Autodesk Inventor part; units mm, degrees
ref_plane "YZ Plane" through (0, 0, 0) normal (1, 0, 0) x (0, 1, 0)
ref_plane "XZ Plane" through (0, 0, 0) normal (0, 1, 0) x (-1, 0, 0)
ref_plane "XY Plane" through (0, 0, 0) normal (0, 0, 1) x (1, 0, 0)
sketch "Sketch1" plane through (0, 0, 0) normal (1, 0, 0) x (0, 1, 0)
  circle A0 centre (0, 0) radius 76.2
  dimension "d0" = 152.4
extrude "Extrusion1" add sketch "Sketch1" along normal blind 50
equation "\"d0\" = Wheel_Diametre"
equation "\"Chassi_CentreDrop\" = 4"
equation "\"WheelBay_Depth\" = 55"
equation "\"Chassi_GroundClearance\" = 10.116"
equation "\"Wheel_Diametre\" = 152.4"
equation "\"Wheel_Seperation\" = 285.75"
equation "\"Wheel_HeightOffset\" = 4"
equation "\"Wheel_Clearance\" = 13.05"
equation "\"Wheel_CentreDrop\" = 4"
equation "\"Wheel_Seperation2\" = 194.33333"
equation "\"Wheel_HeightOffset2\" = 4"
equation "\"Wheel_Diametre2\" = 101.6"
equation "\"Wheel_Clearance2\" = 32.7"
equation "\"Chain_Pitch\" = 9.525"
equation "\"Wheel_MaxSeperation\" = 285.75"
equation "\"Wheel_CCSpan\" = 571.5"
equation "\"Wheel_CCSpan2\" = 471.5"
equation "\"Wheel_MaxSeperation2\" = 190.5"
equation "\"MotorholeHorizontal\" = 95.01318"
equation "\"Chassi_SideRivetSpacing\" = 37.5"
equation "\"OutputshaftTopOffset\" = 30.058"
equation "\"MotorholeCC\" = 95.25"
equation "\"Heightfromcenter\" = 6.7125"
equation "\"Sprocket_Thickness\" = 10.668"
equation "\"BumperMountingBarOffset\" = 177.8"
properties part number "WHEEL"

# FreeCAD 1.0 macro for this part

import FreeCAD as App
import Part
import Sketcher
from FreeCAD import Vector
Q = App.Units.Quantity

doc = App.newDocument("Part")
body = doc.addObject("PartDesign::Body", "Body")

# Sketch on YZ plane
sketch1 = body.newObject("Sketcher::SketchObject", "Sketch")
sketch1.AttachmentSupport = (doc.getObject("YZ_Plane"), [""])
sketch1.MapMode = "FlatFace"
sketch1.addGeometry(Part.Circle(Vector(0, 0, 0), Vector(0, 0, 1), 76), False)
sketch1.addConstraint([
    Sketcher.Constraint("Coincident", 0, 3, -1, 1),
    Sketcher.Constraint("Diameter", 0, Q("6 in")),
])
pad1 = body.newObject("PartDesign::Pad", "Pad")
pad1.Profile = sketch1
pad1.Length = Q("1.9685039 in")

doc.recompute()
